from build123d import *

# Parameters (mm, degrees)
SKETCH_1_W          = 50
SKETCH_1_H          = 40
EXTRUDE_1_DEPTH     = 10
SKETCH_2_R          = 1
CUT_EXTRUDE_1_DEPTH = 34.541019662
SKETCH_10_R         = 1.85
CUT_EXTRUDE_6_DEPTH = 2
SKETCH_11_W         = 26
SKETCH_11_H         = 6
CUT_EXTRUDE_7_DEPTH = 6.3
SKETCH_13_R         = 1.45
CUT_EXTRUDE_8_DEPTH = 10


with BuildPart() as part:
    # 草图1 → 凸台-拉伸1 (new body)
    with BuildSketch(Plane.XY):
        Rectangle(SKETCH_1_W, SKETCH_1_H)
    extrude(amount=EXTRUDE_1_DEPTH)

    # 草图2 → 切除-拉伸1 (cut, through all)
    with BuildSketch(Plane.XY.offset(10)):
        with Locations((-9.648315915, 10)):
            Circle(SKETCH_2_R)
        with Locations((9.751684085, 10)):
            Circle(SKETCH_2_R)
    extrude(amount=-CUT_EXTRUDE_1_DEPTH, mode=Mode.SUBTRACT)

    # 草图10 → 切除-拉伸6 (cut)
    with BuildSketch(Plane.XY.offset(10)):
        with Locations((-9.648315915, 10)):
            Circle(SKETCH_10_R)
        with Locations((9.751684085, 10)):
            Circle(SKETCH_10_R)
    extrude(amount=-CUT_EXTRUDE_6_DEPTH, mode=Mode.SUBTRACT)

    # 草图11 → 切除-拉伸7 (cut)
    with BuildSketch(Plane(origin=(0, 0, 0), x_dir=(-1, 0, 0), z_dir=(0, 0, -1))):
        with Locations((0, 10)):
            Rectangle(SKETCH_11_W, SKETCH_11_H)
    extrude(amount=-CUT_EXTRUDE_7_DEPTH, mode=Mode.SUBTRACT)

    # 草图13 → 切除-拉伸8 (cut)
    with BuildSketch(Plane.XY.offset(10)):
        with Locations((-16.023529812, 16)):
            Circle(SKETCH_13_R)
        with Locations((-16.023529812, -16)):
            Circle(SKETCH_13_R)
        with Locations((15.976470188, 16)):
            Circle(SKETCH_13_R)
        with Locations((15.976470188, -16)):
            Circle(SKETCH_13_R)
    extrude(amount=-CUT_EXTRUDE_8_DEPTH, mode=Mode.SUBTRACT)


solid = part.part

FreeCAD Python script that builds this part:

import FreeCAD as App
import Part
import Sketcher
from FreeCAD import Vector

doc = App.newDocument("Part")
params = doc.addObject("Spreadsheet::Sheet", "Params")
for row, (alias, value) in enumerate([
    ("sketch1_width", "50 mm"),
    ("sketch1_height", "40 mm"),
    ("pad1_length", "10 mm"),
    ("sketch2_diameter", "2 mm"),
    ("sketch3_diameter", "3.7 mm"),
    ("pocket2_length", "2 mm"),
    ("sketch4_width", "26 mm"),
    ("sketch4_height", "6 mm"),
    ("pocket3_length", "6.3 mm"),
    ("sketch5_diameter", "2.9 mm"),
    ("pocket4_length", "10 mm"),
], start=1):
    params.set(f"A{row}", alias)
    params.set(f"B{row}", "=" + value)
    params.setAlias(f"B{row}", alias)

body = doc.addObject("PartDesign::Body", "Body")

# Sketch on XY plane
sketch1 = body.newObject("Sketcher::SketchObject", "Sketch")
sketch1.AttachmentSupport = (doc.getObject("XY_Plane"), [""])
sketch1.MapMode = "FlatFace"
sketch1.addGeometry(Part.LineSegment(Vector(-25, 20, 0), Vector(-25, -20, 0)), False)
sketch1.addGeometry(Part.LineSegment(Vector(-25, -20, 0), Vector(25, -20, 0)), False)
sketch1.addGeometry(Part.LineSegment(Vector(25, -20, 0), Vector(25, 20, 0)), False)
sketch1.addGeometry(Part.LineSegment(Vector(25, 20, 0), Vector(-25, 20, 0)), False)
sketch1.addConstraint(Sketcher.Constraint("Coincident", 0, 2, 1, 1))
sketch1.addConstraint(Sketcher.Constraint("Coincident", 1, 2, 2, 1))
sketch1.addConstraint(Sketcher.Constraint("Coincident", 2, 2, 3, 1))
sketch1.addConstraint(Sketcher.Constraint("Coincident", 3, 2, 0, 1))
sketch1.addConstraint(Sketcher.Constraint("Vertical", 0))
sketch1.addConstraint(Sketcher.Constraint("Horizontal", 1))
sketch1.addConstraint(Sketcher.Constraint("Vertical", 2))
sketch1.addConstraint(Sketcher.Constraint("Horizontal", 3))
sketch1.addConstraint(Sketcher.Constraint("Symmetric", 0, 2, 2, 2, -1, 1))
sketch1.addConstraint(Sketcher.Constraint("DistanceX", 1, 1, 1, 2, 50.0))
sketch1.addConstraint(Sketcher.Constraint("DistanceY", 0, 2, 0, 1, 40.0))
sketch1.setExpression("Constraints[9]", "Params.sketch1_width")
sketch1.setExpression("Constraints[10]", "Params.sketch1_height")
pad1 = body.newObject("PartDesign::Pad", "Pad")
pad1.Profile = sketch1
pad1.setExpression("Length", "Params.pad1_length")

# Sketch on XY plane
sketch2 = body.newObject("Sketcher::SketchObject", "Sketch001")
sketch2.AttachmentSupport = (doc.getObject("XY_Plane"), [""])
sketch2.MapMode = "FlatFace"
sketch2.AttachmentOffset = App.Placement(Vector(0, 0, 10), App.Rotation())
sketch2.addGeometry(Part.Circle(Vector(-9.6, 10, 0), Vector(0, 0, 1), 1), False)
sketch2.addGeometry(Part.Circle(Vector(9.8, 10, 0), Vector(0, 0, 1), 1), False)
sketch2.addConstraint(Sketcher.Constraint("Equal", 0, 1))
sketch2.addConstraint(Sketcher.Constraint("Horizontal", 0, 3, 1, 3))
sketch2.addConstraint(Sketcher.Constraint("Diameter", 0, 2.0))
sketch2.addConstraint(Sketcher.Constraint("DistanceY", -1, 1, 0, 3, 10.0))
sketch2.addConstraint(Sketcher.Constraint("DistanceX", 0, 3, 1, 3, 19.4))
sketch2.addConstraint(Sketcher.Constraint("DistanceX", 0, 3, -1, 1, 9.648316))
sketch2.setExpression("Constraints[2]", "Params.sketch2_diameter")
pocket1 = body.newObject("PartDesign::Pocket", "Pocket")
pocket1.Profile = sketch2
pocket1.Type = "ThroughAll"

# Sketch on XY plane
sketch3 = body.newObject("Sketcher::SketchObject", "Sketch002")
sketch3.AttachmentSupport = (doc.getObject("XY_Plane"), [""])
sketch3.MapMode = "FlatFace"
sketch3.AttachmentOffset = App.Placement(Vector(0, 0, 10), App.Rotation())
sketch3.addGeometry(Part.Circle(Vector(-9.6, 10, 0), Vector(0, 0, 1), 1.9), False)
sketch3.addGeometry(Part.Circle(Vector(9.8, 10, 0), Vector(0, 0, 1), 1.9), False)
sketch3.addConstraint(Sketcher.Constraint("Equal", 0, 1))
sketch3.addConstraint(Sketcher.Constraint("Horizontal", 0, 3, 1, 3))
sketch3.addConstraint(Sketcher.Constraint("Diameter", 0, 3.7))
sketch3.addConstraint(Sketcher.Constraint("DistanceY", -1, 1, 0, 3, 10.0))
sketch3.addConstraint(Sketcher.Constraint("DistanceX", 0, 3, 1, 3, 19.4))
sketch3.addConstraint(Sketcher.Constraint("DistanceX", 0, 3, -1, 1, 9.648316))
sketch3.setExpression("Constraints[2]", "Params.sketch3_diameter")
pocket2 = body.newObject("PartDesign::Pocket", "Pocket001")
pocket2.Profile = sketch3
pocket2.setExpression("Length", "Params.pocket2_length")

# Sketch on XY plane
sketch4 = body.newObject("Sketcher::SketchObject", "Sketch003")
sketch4.AttachmentSupport = (doc.getObject("XY_Plane"), [""])
sketch4.MapMode = "FlatFace"
sketch4.addGeometry(Part.LineSegment(Vector(13, 13, 0), Vector(13, 7, 0)), False)
sketch4.addGeometry(Part.LineSegment(Vector(13, 7, 0), Vector(-13, 7, 0)), False)
sketch4.addGeometry(Part.LineSegment(Vector(-13, 7, 0), Vector(-13, 13, 0)), False)
sketch4.addGeometry(Part.LineSegment(Vector(-13, 13, 0), Vector(13, 13, 0)), False)
sketch4.addConstraint(Sketcher.Constraint("Coincident", 0, 2, 1, 1))
sketch4.addConstraint(Sketcher.Constraint("Coincident", 1, 2, 2, 1))
sketch4.addConstraint(Sketcher.Constraint("Coincident", 2, 2, 3, 1))
sketch4.addConstraint(Sketcher.Constraint("Coincident", 3, 2, 0, 1))
sketch4.addConstraint(Sketcher.Constraint("Vertical", 0))
sketch4.addConstraint(Sketcher.Constraint("Horizontal", 1))
sketch4.addConstraint(Sketcher.Constraint("Vertical", 2))
sketch4.addConstraint(Sketcher.Constraint("Horizontal", 3))
sketch4.addConstraint(Sketcher.Constraint("DistanceX", 1, 2, 1, 1, 26.0))
sketch4.addConstraint(Sketcher.Constraint("DistanceY", 0, 2, 0, 1, 6.0))
sketch4.addConstraint(Sketcher.Constraint("DistanceX", -1, 1, 0, 2, 13.0))
sketch4.addConstraint(Sketcher.Constraint("DistanceY", -1, 1, 0, 2, 7.0))
sketch4.setExpression("Constraints[8]", "Params.sketch4_width")
sketch4.setExpression("Constraints[9]", "Params.sketch4_height")
pocket3 = body.newObject("PartDesign::Pocket", "Pocket002")
pocket3.Profile = sketch4
pocket3.setExpression("Length", "Params.pocket3_length")
pocket3.Reversed = True

# Sketch on XY plane
sketch5 = body.newObject("Sketcher::SketchObject", "Sketch004")
sketch5.AttachmentSupport = (doc.getObject("XY_Plane"), [""])
sketch5.MapMode = "FlatFace"
sketch5.AttachmentOffset = App.Placement(Vector(0, 0, 10), App.Rotation())
sketch5.addGeometry(Part.Circle(Vector(-16, 16, 0), Vector(0, 0, 1), 1.4), False)
sketch5.addGeometry(Part.Circle(Vector(-16, -16, 0), Vector(0, 0, 1), 1.4), False)
sketch5.addGeometry(Part.Circle(Vector(16, 16, 0), Vector(0, 0, 1), 1.4), False)
sketch5.addGeometry(Part.Circle(Vector(16, -16, 0), Vector(0, 0, 1), 1.4), False)
sketch5.addConstraint(Sketcher.Constraint("Equal", 0, 1))
sketch5.addConstraint(Sketcher.Constraint("Equal", 1, 2))
sketch5.addConstraint(Sketcher.Constraint("Equal", 2, 3))
sketch5.addConstraint(Sketcher.Constraint("Symmetric", 0, 3, 1, 3, -1))
sketch5.addConstraint(Sketcher.Constraint("Symmetric", 2, 3, 3, 3, -1))
sketch5.addConstraint(Sketcher.Constraint("Horizontal", 0, 3, 2, 3))
sketch5.addConstraint(Sketcher.Constraint("Diameter", 0, 2.9))
sketch5.addConstraint(Sketcher.Constraint("DistanceY", -1, 1, 0, 3, 16.0))
sketch5.addConstraint(Sketcher.Constraint("DistanceX", 0, 3, 2, 3, 32.0))
sketch5.addConstraint(Sketcher.Constraint("DistanceX", 0, 3, -1, 1, 16.02353))
sketch5.setExpression("Constraints[6]", "Params.sketch5_diameter")
pocket4 = body.newObject("PartDesign::Pocket", "Pocket003")
pocket4.Profile = sketch5
pocket4.setExpression("Length", "Params.pocket4_length")

doc.recompute()
